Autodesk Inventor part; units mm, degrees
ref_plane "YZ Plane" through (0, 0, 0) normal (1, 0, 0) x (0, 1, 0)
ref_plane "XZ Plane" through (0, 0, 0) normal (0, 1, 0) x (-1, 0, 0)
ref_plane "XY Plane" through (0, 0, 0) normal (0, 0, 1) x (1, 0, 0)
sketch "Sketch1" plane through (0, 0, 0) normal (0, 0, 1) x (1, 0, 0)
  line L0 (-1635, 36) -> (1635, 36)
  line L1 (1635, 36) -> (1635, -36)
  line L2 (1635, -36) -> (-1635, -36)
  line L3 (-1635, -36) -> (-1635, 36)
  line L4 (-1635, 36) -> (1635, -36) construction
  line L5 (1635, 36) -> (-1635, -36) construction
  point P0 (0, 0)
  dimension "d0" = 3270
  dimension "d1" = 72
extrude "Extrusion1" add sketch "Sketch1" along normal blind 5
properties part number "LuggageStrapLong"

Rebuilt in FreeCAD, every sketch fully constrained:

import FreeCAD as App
import Part
import Sketcher

V = App.Vector


def add_polygon(sketch, points):
    """Adds a closed chain of lines whose ends are joined by coincident constraints."""
    first, n = sketch.GeometryCount, len(points)
    for a, b in zip(points, points[1:] + points[:1]):
        sketch.addGeometry(Part.LineSegment(App.Vector(*a, 0), App.Vector(*b, 0)), False)
    for i in range(n):
        sketch.addConstraint(Sketcher.Constraint("Coincident", first + i, 2, first + (i + 1) % n, 1))

doc = App.newDocument("Part")
body = doc.addObject("PartDesign::Body", "Body")

# Sketch on XY plane
sketch1 = body.newObject("Sketcher::SketchObject", "Sketch")
sketch1.AttachmentSupport = (doc.getObject("XY_Plane"), [""])
sketch1.MapMode = "FlatFace"
add_polygon(sketch1, [(1635, 36), (-1635, 36), (-1635, -36), (1635, -36)])  # lines 0-3
sketch1.addConstraint(Sketcher.Constraint("Horizontal", 0))
sketch1.addConstraint(Sketcher.Constraint("Vertical", 1))
sketch1.addConstraint(Sketcher.Constraint("Horizontal", 2))
sketch1.addConstraint(Sketcher.Constraint("Vertical", 3))
sketch1.addConstraint(Sketcher.Constraint("Symmetric", 0, 2, 2, 2, -1, 1))
sketch1.addConstraint(Sketcher.Constraint("DistanceX", 0, 2, 0, 1, 3270.0))
sketch1.addConstraint(Sketcher.Constraint("DistanceY", 1, 2, 1, 1, 72.0))
pad1 = body.newObject("PartDesign::Pad", "Pad")
pad1.Profile = sketch1
pad1.Length = 5

doc.recompute()
